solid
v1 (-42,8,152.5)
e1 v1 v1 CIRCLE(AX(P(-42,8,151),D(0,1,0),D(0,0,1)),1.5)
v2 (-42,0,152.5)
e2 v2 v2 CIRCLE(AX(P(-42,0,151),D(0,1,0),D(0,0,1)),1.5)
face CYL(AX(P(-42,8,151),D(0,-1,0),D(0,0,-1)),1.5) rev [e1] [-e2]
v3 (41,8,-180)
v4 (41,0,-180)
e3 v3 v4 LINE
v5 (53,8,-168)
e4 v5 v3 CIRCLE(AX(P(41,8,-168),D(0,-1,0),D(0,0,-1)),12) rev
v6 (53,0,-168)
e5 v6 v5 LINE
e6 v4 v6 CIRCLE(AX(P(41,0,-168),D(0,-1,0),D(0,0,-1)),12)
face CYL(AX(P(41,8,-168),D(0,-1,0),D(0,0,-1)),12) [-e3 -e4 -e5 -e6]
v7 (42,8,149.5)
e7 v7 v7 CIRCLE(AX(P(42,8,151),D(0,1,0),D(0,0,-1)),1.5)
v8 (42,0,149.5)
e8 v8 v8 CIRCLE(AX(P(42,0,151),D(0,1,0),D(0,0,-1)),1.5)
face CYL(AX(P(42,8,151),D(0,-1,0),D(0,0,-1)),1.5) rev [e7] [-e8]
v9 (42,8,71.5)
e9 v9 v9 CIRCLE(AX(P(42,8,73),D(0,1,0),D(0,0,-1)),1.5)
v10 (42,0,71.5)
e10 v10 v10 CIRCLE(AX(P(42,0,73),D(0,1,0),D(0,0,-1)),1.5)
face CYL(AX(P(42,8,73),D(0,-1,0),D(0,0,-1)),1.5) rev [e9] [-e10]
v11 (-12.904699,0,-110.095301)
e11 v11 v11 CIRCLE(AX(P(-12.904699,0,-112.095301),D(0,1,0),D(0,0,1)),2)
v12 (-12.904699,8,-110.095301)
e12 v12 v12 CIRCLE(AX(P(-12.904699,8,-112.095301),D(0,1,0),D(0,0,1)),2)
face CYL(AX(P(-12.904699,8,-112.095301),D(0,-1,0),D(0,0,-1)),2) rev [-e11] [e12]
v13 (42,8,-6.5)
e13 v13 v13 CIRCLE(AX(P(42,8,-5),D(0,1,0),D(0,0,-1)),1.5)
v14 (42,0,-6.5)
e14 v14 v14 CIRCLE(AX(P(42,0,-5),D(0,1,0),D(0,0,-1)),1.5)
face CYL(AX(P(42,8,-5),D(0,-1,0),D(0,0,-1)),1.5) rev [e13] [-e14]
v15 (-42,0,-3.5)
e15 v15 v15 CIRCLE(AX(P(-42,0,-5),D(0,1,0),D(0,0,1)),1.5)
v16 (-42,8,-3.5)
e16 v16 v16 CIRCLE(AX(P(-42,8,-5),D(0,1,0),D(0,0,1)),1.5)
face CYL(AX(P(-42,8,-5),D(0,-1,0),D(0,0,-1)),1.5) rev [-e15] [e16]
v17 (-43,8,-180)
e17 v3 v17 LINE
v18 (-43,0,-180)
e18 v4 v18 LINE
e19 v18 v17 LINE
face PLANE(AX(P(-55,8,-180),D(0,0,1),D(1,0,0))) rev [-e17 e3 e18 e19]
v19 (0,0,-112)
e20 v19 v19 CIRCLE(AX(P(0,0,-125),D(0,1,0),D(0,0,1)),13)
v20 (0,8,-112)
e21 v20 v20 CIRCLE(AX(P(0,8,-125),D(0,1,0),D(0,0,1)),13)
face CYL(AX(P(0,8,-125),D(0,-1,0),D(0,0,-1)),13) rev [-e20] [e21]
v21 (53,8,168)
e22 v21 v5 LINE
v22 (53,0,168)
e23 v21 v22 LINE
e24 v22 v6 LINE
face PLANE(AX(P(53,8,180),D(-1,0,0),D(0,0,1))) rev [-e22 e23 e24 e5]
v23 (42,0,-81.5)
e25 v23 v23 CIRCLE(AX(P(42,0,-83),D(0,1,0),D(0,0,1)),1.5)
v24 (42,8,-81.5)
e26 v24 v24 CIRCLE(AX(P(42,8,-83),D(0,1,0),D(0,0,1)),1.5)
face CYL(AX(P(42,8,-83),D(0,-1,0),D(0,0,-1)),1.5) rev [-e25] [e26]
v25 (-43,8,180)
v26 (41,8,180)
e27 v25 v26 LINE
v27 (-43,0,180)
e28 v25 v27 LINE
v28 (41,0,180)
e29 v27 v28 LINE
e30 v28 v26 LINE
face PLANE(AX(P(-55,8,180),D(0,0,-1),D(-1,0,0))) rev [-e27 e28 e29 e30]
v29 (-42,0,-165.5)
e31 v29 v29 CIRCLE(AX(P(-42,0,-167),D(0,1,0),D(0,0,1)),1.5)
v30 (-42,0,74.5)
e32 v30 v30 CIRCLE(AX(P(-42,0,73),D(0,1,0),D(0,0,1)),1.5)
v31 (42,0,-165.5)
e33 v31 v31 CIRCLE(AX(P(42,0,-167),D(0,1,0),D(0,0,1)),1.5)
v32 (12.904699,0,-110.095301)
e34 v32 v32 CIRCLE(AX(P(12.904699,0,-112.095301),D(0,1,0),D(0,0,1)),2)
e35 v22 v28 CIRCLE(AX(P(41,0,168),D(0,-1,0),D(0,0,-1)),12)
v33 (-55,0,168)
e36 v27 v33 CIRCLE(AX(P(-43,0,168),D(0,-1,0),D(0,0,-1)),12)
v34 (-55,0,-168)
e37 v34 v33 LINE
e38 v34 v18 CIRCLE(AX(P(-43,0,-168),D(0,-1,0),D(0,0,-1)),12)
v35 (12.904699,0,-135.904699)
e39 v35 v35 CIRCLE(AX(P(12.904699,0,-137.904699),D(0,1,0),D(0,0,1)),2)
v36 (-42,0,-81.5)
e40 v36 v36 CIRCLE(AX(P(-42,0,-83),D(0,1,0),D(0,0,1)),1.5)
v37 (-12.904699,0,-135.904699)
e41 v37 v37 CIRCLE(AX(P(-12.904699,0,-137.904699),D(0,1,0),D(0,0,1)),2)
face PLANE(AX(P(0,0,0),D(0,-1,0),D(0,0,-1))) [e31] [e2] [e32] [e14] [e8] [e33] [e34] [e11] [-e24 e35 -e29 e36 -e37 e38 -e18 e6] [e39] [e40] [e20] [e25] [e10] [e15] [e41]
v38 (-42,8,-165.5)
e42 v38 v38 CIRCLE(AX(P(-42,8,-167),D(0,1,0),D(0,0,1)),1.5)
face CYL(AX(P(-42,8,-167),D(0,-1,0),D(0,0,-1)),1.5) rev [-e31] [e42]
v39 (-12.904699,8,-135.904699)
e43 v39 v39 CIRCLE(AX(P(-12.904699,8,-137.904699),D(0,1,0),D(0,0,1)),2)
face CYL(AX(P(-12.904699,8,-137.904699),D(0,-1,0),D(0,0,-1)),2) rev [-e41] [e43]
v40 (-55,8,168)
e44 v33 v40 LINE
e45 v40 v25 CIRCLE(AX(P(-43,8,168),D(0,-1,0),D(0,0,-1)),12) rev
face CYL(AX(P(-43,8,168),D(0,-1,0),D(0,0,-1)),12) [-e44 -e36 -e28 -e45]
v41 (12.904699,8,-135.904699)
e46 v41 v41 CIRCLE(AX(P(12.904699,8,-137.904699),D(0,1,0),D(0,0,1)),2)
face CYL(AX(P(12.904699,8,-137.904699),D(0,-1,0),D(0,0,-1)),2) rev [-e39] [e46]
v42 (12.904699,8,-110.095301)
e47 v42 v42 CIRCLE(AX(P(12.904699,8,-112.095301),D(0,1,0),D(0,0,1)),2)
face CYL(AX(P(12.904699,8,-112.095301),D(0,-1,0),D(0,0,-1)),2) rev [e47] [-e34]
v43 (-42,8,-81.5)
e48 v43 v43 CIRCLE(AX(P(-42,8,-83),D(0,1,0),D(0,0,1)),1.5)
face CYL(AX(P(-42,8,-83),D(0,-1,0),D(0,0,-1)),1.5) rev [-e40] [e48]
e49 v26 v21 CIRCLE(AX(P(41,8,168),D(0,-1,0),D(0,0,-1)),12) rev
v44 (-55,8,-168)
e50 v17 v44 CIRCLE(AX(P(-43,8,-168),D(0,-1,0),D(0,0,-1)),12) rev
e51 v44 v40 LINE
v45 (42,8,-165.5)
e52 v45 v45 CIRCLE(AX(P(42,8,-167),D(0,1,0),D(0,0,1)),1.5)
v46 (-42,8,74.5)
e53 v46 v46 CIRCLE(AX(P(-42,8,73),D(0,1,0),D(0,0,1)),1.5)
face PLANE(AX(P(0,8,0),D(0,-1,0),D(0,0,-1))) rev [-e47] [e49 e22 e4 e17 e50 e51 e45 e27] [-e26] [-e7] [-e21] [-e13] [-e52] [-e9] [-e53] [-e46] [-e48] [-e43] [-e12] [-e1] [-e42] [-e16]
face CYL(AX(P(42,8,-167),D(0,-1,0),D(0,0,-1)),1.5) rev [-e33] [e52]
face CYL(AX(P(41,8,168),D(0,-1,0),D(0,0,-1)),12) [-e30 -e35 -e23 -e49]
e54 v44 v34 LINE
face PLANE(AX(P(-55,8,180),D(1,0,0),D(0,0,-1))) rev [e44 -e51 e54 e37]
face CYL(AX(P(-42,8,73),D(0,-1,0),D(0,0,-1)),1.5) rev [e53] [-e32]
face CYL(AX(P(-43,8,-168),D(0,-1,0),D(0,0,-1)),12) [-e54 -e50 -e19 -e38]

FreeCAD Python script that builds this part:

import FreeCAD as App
import Part
import Sketcher
Q = App.Units.Quantity


def edges_at(feature, points):
    """Names of the edges that pass closest to the given points."""
    edges = feature.Shape.Edges
    near = lambda p: min(range(len(edges)), key=lambda i: edges[i].distToShape(Part.Vertex(*p))[0])
    return sorted({f"Edge{near(p) + 1}" for p in points})

doc = App.newDocument("Part")
body = doc.addObject("PartDesign::Body", "Body")

# Sketch on XZ plane
sketch1 = doc.addObject("Sketcher::SketchObject", "Sketch")
body.addObject(sketch1)
sketch1.AttachmentSupport = (doc.XZ_Plane, [""])
sketch1.MapMode = "FlatFace"
sketch1.addGeometry([
    Part.LineSegment(App.Vector(-55, -180, 0), App.Vector(-55, 180, 0)),  # 0
    Part.LineSegment(App.Vector(-55, 180, 0), App.Vector(53, 180, 0)),  # 1
    Part.LineSegment(App.Vector(53, 180, 0), App.Vector(53, -180, 0)),  # 2
    Part.LineSegment(App.Vector(53, -180, 0), App.Vector(-55, -180, 0)),  # 3
    Part.Circle(App.Vector(-42, 151, 0), App.Vector(0, 0, 1), 1.5),  # 4
    Part.Circle(App.Vector(-42, 73, 0), App.Vector(0, 0, 1), 1.5),  # 5
    Part.Circle(App.Vector(-42, -5, 0), App.Vector(0, 0, 1), 1.5),  # 6
    Part.Circle(App.Vector(42, 151, 0), App.Vector(0, 0, 1), 1.5),  # 7
    Part.Circle(App.Vector(42, 73, 0), App.Vector(0, 0, 1), 1.5),  # 8
    Part.Circle(App.Vector(42, -5, 0), App.Vector(0, 0, 1), 1.5),  # 9
    Part.Circle(App.Vector(-42, -83, 0), App.Vector(0, 0, 1), 1.5),  # 10
    Part.Circle(App.Vector(-42, -167, 0), App.Vector(0, 0, 1), 1.5),  # 11
    Part.Circle(App.Vector(-12.904699, -112.095301, 0), App.Vector(0, 0, 1), 2),  # 12
    Part.Circle(App.Vector(-12.904699, -137.904699, 0), App.Vector(0, 0, 1), 2),  # 13
    Part.Circle(App.Vector(42, -83, 0), App.Vector(0, 0, 1), 1.5),  # 14
    Part.Circle(App.Vector(0, -125, 0), App.Vector(0, 0, 1), 13),  # 15
    Part.Circle(App.Vector(12.904699, -112.095301, 0), App.Vector(0, 0, 1), 2),  # 16
    Part.Circle(App.Vector(12.904699, -137.904699, 0), App.Vector(0, 0, 1), 2),  # 17
    Part.Circle(App.Vector(42, -167, 0), App.Vector(0, 0, 1), 1.5),  # 18
], False)
sketch1.addConstraint([
    Sketcher.Constraint("Coincident", 0, 2, 1, 1),
    Sketcher.Constraint("Coincident", 1, 2, 2, 1),
    Sketcher.Constraint("Coincident", 2, 2, 3, 1),
    Sketcher.Constraint("Coincident", 3, 2, 0, 1),
    Sketcher.Constraint("Vertical", 0),
    Sketcher.Constraint("Horizontal", 1),
    Sketcher.Constraint("Vertical", 2),
    Sketcher.Constraint("Horizontal", 3),
    Sketcher.Constraint("Equal", 4, 5),
    Sketcher.Constraint("Equal", 5, 6),
    Sketcher.Constraint("Equal", 6, 7),
    Sketcher.Constraint("Equal", 7, 8),
    Sketcher.Constraint("Equal", 8, 9),
    Sketcher.Constraint("Equal", 9, 10),
    Sketcher.Constraint("Equal", 10, 11),
    Sketcher.Constraint("Equal", 12, 13),
    Sketcher.Constraint("Equal", 11, 14),
    Sketcher.Constraint("Equal", 13, 16),
    Sketcher.Constraint("Equal", 16, 17),
    Sketcher.Constraint("Equal", 14, 18),
    Sketcher.Constraint("Symmetric", 4, 3, 7, 3, -2),
    Sketcher.Constraint("Symmetric", 5, 3, 8, 3, -2),
    Sketcher.Constraint("Symmetric", 6, 3, 9, 3, -2),
    Sketcher.Constraint("Symmetric", 10, 3, 14, 3, -2),
    Sketcher.Constraint("Symmetric", 12, 3, 16, 3, -2),
    Sketcher.Constraint("Symmetric", 13, 3, 17, 3, -2),
    Sketcher.Constraint("Symmetric", 11, 3, 18, 3, -2),
    Sketcher.Constraint("PointOnObject", 15, 3, -2),
    Sketcher.Constraint("Vertical", 4, 3, 5, 3),
    Sketcher.Constraint("Vertical", 5, 3, 6, 3),
    Sketcher.Constraint("Vertical", 6, 3, 10, 3),
    Sketcher.Constraint("Vertical", 10, 3, 11, 3),
    Sketcher.Constraint("Vertical", 12, 3, 13, 3),
    Sketcher.Constraint("Diameter", 4, Q("3 mm")),
    Sketcher.Constraint("Diameter", 12, Q("4 mm")),
    Sketcher.Constraint("Diameter", 15, Q("26 mm")),
    Sketcher.Constraint("DistanceX", 1, 1, 1, 2, Q("108 mm")),
    Sketcher.Constraint("DistanceY", 0, 1, 0, 2, Q("360 mm")),
    Sketcher.Constraint("DistanceX", 4, 3, -1, 1, Q("42 mm")),
    Sketcher.Constraint("DistanceY", -1, 1, 4, 3, Q("151 mm")),
    Sketcher.Constraint("DistanceY", -1, 1, 5, 3, Q("73 mm")),
    Sketcher.Constraint("DistanceY", 6, 3, -1, 1, Q("5 mm")),
    Sketcher.Constraint("DistanceY", 10, 3, -1, 1, Q("83 mm")),
    Sketcher.Constraint("DistanceY", 11, 3, -1, 1, Q("167 mm")),
    Sketcher.Constraint("DistanceY", 15, 3, -1, 1, Q("125 mm")),
    Sketcher.Constraint("DistanceX", 0, 2, -1, 1, Q("55 mm")),
    Sketcher.Constraint("DistanceY", -1, 1, 0, 2, Q("180 mm")),
    Sketcher.Constraint("DistanceX", 12, 3, -1, 1, Q("12.904699 mm")),
    Sketcher.Constraint("DistanceY", 12, 3, -1, 1, Q("112.095301 mm")),
    Sketcher.Constraint("DistanceY", 13, 3, -1, 1, Q("137.904699 mm")),
])
pad1 = doc.addObject("PartDesign::Pad", "Pad")
body.addObject(pad1)
pad1.Profile = sketch1
pad1.Length = 8
pad1.Reversed = True
doc.recompute()

fillet = doc.addObject("PartDesign::Fillet", "Fillet")
body.addObject(fillet)
fillet.Base = (pad1, edges_at(pad1, [
    (53, 4, 180),
    (-55, 4, 180),
    (-55, 4, -180),
    (53, 4, -180),
]))
fillet.Radius = 12

doc.recompute()
